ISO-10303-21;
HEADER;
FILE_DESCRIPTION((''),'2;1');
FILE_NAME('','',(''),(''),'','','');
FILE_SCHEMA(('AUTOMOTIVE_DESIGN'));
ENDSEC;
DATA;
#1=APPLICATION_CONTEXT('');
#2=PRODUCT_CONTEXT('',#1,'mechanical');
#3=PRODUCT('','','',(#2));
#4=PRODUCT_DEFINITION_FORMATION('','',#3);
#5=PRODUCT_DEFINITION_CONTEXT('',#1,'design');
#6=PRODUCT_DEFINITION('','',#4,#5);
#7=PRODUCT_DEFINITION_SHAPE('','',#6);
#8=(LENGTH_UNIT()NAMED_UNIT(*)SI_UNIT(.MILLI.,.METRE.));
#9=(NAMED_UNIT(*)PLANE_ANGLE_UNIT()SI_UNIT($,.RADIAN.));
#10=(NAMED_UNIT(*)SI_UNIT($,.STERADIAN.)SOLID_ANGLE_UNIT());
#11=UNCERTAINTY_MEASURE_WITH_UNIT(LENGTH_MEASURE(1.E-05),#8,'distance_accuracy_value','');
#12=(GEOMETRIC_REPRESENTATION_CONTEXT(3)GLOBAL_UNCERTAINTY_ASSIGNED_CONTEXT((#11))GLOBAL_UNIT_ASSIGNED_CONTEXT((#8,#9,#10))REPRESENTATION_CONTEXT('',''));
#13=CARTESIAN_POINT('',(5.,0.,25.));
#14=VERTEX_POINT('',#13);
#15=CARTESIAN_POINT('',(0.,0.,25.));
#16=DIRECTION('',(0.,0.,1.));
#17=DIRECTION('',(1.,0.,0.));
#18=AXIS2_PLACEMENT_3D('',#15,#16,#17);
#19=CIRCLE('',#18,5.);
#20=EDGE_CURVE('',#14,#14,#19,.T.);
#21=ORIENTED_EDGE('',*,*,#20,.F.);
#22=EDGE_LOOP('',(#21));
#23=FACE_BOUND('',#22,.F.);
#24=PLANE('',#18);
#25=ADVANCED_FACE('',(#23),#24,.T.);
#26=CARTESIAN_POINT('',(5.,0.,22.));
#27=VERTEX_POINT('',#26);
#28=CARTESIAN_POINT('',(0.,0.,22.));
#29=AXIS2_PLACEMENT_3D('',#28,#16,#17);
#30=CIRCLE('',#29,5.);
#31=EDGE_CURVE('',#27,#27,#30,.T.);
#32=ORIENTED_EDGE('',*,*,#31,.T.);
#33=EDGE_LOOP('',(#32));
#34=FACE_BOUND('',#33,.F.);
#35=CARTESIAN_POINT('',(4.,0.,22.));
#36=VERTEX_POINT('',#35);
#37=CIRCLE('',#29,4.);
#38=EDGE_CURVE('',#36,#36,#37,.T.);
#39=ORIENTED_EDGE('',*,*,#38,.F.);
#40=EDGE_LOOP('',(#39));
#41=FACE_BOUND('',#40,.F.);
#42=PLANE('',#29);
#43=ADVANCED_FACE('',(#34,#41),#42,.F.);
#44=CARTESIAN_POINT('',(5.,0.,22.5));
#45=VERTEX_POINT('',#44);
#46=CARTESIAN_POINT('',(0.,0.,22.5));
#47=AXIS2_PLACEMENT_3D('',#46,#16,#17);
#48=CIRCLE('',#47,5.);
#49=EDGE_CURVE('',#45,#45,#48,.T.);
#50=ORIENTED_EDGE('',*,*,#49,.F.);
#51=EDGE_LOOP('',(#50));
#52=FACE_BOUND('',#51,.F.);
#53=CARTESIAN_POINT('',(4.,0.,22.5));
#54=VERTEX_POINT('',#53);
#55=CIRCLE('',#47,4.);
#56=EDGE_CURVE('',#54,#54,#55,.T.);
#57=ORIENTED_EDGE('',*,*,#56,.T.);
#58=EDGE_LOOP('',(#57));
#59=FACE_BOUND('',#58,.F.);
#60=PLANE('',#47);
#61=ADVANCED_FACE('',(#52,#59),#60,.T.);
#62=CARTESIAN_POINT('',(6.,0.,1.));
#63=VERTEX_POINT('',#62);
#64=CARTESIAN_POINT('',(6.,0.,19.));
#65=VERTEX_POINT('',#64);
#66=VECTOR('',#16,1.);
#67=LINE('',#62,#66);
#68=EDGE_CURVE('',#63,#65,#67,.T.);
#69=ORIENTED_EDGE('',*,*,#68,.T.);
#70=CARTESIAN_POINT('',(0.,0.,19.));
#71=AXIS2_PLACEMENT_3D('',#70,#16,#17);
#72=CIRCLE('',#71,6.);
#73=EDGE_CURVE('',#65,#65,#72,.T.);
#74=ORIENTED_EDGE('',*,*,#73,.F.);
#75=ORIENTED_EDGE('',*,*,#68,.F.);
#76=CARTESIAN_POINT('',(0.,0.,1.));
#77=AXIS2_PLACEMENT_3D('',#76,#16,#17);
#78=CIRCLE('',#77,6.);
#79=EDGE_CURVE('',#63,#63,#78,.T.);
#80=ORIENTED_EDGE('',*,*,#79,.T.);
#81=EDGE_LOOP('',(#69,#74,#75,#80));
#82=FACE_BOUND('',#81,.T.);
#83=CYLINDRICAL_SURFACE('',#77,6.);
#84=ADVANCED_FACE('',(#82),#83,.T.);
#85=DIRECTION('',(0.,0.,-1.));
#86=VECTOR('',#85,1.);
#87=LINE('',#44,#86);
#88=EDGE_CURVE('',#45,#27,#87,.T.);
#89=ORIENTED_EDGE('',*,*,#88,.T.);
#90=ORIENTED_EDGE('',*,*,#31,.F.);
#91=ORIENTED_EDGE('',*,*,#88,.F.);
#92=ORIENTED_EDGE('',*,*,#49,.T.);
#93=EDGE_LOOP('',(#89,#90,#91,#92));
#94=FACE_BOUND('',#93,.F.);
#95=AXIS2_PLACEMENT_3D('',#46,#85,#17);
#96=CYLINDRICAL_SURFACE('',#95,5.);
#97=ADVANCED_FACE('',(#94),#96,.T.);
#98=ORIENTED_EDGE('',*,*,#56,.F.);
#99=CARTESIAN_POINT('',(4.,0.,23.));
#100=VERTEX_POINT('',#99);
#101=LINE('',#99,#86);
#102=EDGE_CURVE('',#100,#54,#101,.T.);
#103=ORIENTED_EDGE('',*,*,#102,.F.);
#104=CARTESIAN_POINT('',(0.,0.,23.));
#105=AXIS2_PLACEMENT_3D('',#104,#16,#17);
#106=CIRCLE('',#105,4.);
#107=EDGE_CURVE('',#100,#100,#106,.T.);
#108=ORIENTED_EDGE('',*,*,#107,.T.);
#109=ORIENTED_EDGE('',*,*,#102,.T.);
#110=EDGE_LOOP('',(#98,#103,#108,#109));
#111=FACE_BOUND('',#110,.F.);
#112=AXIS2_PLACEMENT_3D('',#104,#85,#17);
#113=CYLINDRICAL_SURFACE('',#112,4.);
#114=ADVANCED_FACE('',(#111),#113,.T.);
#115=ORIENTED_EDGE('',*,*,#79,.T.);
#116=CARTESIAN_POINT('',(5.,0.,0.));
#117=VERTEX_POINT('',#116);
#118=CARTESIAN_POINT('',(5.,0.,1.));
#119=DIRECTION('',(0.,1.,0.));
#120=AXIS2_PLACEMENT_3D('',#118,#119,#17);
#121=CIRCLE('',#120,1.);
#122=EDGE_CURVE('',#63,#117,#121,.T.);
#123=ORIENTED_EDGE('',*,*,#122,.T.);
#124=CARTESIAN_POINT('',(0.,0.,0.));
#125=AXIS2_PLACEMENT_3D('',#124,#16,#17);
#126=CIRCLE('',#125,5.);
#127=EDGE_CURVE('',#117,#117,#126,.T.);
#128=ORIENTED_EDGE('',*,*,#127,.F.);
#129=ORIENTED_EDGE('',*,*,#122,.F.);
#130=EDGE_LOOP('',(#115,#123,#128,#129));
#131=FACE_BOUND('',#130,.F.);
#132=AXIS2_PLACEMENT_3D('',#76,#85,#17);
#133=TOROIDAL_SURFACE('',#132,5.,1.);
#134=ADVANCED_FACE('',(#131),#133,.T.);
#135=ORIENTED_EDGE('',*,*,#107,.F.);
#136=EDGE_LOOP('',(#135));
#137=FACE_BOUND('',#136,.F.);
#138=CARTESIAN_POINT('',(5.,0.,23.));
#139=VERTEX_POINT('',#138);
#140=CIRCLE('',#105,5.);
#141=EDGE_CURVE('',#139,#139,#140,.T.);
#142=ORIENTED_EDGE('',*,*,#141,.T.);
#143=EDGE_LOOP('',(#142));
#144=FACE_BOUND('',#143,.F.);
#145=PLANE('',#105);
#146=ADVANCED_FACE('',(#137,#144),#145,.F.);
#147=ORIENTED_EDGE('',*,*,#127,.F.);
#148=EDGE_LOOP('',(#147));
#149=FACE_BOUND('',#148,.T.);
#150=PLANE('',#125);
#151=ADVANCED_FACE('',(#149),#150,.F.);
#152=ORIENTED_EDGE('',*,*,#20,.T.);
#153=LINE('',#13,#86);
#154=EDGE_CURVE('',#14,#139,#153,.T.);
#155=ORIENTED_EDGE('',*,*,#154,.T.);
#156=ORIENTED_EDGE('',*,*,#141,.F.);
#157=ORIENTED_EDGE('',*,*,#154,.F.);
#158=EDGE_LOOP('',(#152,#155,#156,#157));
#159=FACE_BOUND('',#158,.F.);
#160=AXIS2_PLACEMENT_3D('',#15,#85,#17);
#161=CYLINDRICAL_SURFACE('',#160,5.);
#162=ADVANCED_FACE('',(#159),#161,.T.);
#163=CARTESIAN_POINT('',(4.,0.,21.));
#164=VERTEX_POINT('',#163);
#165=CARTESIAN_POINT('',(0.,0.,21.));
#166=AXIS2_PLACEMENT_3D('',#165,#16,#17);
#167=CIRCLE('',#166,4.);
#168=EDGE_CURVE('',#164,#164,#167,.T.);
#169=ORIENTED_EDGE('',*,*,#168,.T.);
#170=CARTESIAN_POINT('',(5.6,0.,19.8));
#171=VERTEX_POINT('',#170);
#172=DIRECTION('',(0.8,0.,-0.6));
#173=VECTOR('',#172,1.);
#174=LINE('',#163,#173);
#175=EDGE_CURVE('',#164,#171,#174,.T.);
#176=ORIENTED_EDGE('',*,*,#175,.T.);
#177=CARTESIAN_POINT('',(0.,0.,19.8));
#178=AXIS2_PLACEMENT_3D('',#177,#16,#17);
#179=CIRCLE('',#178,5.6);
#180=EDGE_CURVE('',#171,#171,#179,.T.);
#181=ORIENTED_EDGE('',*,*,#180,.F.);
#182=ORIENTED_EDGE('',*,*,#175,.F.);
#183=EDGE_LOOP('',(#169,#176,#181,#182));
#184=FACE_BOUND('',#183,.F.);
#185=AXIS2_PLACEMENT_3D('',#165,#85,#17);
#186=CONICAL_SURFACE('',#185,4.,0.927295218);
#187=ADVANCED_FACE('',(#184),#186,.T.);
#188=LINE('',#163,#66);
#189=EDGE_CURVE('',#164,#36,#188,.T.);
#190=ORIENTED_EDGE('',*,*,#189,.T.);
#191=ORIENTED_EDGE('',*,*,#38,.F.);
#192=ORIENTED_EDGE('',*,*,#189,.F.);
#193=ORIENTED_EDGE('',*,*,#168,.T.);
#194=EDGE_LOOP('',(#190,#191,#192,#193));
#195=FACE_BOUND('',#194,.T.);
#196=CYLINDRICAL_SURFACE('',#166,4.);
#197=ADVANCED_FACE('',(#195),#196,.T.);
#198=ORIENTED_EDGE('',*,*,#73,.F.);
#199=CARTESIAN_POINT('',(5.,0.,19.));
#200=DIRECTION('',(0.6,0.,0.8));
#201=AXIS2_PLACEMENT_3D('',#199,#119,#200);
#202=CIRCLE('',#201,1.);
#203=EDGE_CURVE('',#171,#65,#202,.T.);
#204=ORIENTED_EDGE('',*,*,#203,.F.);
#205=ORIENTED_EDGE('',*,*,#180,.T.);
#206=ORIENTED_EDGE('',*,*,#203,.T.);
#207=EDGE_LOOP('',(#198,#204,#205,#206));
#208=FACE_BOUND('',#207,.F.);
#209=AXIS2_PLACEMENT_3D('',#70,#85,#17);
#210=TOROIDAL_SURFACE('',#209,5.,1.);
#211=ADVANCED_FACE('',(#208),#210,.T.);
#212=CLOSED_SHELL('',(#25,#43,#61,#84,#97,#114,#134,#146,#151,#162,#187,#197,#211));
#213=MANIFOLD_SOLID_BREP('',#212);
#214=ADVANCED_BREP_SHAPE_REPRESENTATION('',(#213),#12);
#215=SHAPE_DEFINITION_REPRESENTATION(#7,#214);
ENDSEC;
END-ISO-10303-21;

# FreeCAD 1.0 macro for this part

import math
import FreeCAD as App
import Part
import Sketcher

doc = App.newDocument("Part")
params = doc.addObject("Spreadsheet::Sheet", "Params")
for row, (alias, value) in enumerate([
    ("sketch1_radius", "1 mm"),
    ("sketch1_width", "5 mm"),
    ("sketch1_width2", "1 mm"),
    ("sketch1_height", "25 mm"),
    ("sketch1_height2", "2 mm"),
    ("revolution_angle", "360 deg"),
], start=1):
    params.set(f"A{row}", alias)
    params.set(f"B{row}", "=" + value)
    params.setAlias(f"B{row}", alias)

body = doc.addObject("PartDesign::Body", "Body")

sketch1 = body.newObject("Sketcher::SketchObject", "Sketch")
sketch1.AttachmentSupport = (doc.getObject("XZ_Plane"), [""])
sketch1.MapMode = "FlatFace"
sketch1.addGeometry([
    Part.LineSegment(App.Vector(5, 0, 0), App.Vector(0, 0, 0)),
    Part.LineSegment(App.Vector(0, 0, 0), App.Vector(0, 25, 0)),
    Part.LineSegment(App.Vector(0, 25, 0), App.Vector(5, 25, 0)),
    Part.LineSegment(App.Vector(5, 25, 0), App.Vector(5, 23, 0)),
    Part.LineSegment(App.Vector(5, 23, 0), App.Vector(4, 23, 0)),
    Part.LineSegment(App.Vector(4, 23, 0), App.Vector(4, 22.5, 0)),
    Part.LineSegment(App.Vector(4, 22.5, 0), App.Vector(5, 22.5, 0)),
    Part.LineSegment(App.Vector(5, 22.5, 0), App.Vector(5, 22, 0)),
    Part.LineSegment(App.Vector(5, 22, 0), App.Vector(4, 22, 0)),
    Part.LineSegment(App.Vector(4, 22, 0), App.Vector(4, 21, 0)),
    Part.LineSegment(App.Vector(4, 21, 0), App.Vector(5.6, 19.8, 0)),
    Part.ArcOfCircle(Part.Circle(App.Vector(5, 19, 0), App.Vector(0, 0, 1), 1), math.radians(0), math.radians(53)),
    Part.LineSegment(App.Vector(6, 19, 0), App.Vector(6, 1, 0)),
    Part.ArcOfCircle(Part.Circle(App.Vector(5, 1, 0), App.Vector(0, 0, 1), 1), math.radians(-90), math.radians(0)),
], False)
sketch1.addConstraint([
    Sketcher.Constraint("Coincident", 0, 2, 1, 1),
    Sketcher.Constraint("Coincident", 1, 2, 2, 1),
    Sketcher.Constraint("Coincident", 2, 2, 3, 1),
    Sketcher.Constraint("Coincident", 3, 2, 4, 1),
    Sketcher.Constraint("Coincident", 4, 2, 5, 1),
    Sketcher.Constraint("Coincident", 5, 2, 6, 1),
    Sketcher.Constraint("Coincident", 6, 2, 7, 1),
    Sketcher.Constraint("Coincident", 7, 2, 8, 1),
    Sketcher.Constraint("Coincident", 8, 2, 9, 1),
    Sketcher.Constraint("Coincident", 9, 2, 10, 1),
    Sketcher.Constraint("Tangent", 10, 2, 11, 2),
    Sketcher.Constraint("Tangent", 11, 1, 12, 1),
    Sketcher.Constraint("Tangent", 12, 2, 13, 2),
    Sketcher.Constraint("Tangent", 13, 1, 0, 1),
    Sketcher.Constraint("Horizontal", 0),
    Sketcher.Constraint("Vertical", 1),
    Sketcher.Constraint("Horizontal", 2),
    Sketcher.Constraint("Vertical", 3),
    Sketcher.Constraint("Horizontal", 4),
    Sketcher.Constraint("Vertical", 5),
    Sketcher.Constraint("Horizontal", 6),
    Sketcher.Constraint("Vertical", 7),
    Sketcher.Constraint("Horizontal", 8),
    Sketcher.Constraint("Vertical", 9),
    Sketcher.Constraint("Vertical", 12),
    Sketcher.Constraint("Coincident", 0, 2, -1, 1),
    Sketcher.Constraint("Equal", 11, 13),
    Sketcher.Constraint("Vertical", 13, 3, 2, 2),
    Sketcher.Constraint("Vertical", 3, 2, 6, 2),
    Sketcher.Constraint("Vertical", 5, 2, 8, 2),
    Sketcher.Constraint("Equal", 5, 7),
    Sketcher.Constraint("Equal", 8, 9),
    Sketcher.Constraint("Radius", 11, 1.0),
    Sketcher.Constraint("DistanceX", 0, 2, 0, 1, 5.0),
    Sketcher.Constraint("DistanceX", 4, 2, 4, 1, 1.0),
    Sketcher.Constraint("DistanceY", 1, 1, 1, 2, 25.0),
    Sketcher.Constraint("DistanceY", 3, 2, 3, 1, 2.0),
    Sketcher.Constraint("DistanceY", 12, 2, 12, 1, 18.0),
    Sketcher.Constraint("Distance", 10, 2.0),
])
sketch1.setExpression("Constraints[32]", "Params.sketch1_radius")
sketch1.setExpression("Constraints[33]", "Params.sketch1_width")
sketch1.setExpression("Constraints[34]", "Params.sketch1_width2")
sketch1.setExpression("Constraints[35]", "Params.sketch1_height")
sketch1.setExpression("Constraints[36]", "Params.sketch1_height2")
revolution = body.newObject("PartDesign::Revolution", "Revolution")
revolution.Profile = sketch1
revolution.ReferenceAxis = (sketch1, ["V_Axis"])
revolution.setExpression("Angle", "Params.revolution_angle")

doc.recompute()
